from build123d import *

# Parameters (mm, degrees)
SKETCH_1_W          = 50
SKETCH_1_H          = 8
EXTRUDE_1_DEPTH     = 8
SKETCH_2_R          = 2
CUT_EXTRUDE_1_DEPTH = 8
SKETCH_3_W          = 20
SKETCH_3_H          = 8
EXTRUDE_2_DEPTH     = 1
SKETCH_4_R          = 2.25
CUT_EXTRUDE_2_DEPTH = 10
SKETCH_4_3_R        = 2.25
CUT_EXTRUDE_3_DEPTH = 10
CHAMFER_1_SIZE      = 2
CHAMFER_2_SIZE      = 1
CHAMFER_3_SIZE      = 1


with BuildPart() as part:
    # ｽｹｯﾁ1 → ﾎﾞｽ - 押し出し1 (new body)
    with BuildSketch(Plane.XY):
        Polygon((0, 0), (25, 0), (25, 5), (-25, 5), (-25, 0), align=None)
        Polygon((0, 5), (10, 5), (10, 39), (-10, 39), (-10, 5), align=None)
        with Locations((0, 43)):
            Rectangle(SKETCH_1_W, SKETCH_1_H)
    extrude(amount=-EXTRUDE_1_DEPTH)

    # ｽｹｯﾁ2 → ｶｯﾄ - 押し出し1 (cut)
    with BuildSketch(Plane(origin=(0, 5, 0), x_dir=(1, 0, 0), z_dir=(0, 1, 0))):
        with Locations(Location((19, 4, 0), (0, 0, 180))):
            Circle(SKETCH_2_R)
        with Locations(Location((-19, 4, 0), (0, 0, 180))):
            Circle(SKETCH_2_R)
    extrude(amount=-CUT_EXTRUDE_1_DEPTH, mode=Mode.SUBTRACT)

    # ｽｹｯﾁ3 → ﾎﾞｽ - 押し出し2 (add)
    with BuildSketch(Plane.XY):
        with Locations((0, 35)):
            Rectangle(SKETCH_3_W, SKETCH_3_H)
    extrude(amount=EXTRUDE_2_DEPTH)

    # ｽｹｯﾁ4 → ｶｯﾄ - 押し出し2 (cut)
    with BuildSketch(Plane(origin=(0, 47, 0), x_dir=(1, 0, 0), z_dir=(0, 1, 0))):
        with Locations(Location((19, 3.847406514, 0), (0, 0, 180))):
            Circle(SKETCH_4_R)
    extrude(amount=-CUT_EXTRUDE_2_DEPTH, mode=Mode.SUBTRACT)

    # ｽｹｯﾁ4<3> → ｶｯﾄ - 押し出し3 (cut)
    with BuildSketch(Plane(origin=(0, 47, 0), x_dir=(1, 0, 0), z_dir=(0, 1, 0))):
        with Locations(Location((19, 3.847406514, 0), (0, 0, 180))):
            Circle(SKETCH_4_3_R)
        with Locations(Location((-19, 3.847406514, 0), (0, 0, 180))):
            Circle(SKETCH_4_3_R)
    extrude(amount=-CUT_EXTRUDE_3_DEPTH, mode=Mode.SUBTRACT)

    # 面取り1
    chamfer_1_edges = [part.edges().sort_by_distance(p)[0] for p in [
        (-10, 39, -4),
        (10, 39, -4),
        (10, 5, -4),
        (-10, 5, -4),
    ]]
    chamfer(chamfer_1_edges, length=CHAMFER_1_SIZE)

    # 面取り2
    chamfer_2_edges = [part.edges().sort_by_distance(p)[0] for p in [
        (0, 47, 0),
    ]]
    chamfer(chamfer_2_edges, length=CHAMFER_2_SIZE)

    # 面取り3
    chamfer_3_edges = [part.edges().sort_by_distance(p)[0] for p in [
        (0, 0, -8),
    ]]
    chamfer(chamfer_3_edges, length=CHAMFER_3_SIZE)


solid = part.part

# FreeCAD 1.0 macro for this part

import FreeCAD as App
import Part
import Sketcher
from FreeCAD import Vector


def edges_at(feature, points):
    """Names of the edges that pass closest to the given points."""
    edges = feature.Shape.Edges
    near = lambda p: min(range(len(edges)), key=lambda i: edges[i].distToShape(Part.Vertex(*p))[0])
    return sorted({f"Edge{near(p) + 1}" for p in points})


def add_polygon(sketch, points):
    """Adds a closed chain of lines whose ends are joined by coincident constraints."""
    first, n = sketch.GeometryCount, len(points)
    for a, b in zip(points, points[1:] + points[:1]):
        sketch.addGeometry(Part.LineSegment(App.Vector(*a, 0), App.Vector(*b, 0)), False)
    for i in range(n):
        sketch.addConstraint(Sketcher.Constraint("Coincident", first + i, 2, first + (i + 1) % n, 1))

doc = App.newDocument("Part")
body = doc.addObject("PartDesign::Body", "Body")

# Sketch on XY plane
sketch1 = body.newObject("Sketcher::SketchObject", "Sketch")
sketch1.AttachmentSupport = (doc.getObject("XY_Plane"), [""])
sketch1.MapMode = "FlatFace"
add_polygon(sketch1, [(25, 0), (25, 5), (10, 5), (10, 39), (25, 39), (25, 47), (-25, 47), (-25, 39), (-10, 39), (-10, 5), (-25, 5), (-25, 0)])  # lines 0-11
sketch1.addConstraint([
    Sketcher.Constraint("Vertical", 0),
    Sketcher.Constraint("Horizontal", 1),
    Sketcher.Constraint("Vertical", 2),
    Sketcher.Constraint("Horizontal", 3),
    Sketcher.Constraint("Vertical", 4),
    Sketcher.Constraint("Horizontal", 5),
    Sketcher.Constraint("Vertical", 6),
    Sketcher.Constraint("Horizontal", 7),
    Sketcher.Constraint("Vertical", 8),
    Sketcher.Constraint("Horizontal", 9),
    Sketcher.Constraint("Vertical", 10),
    Sketcher.Constraint("Horizontal", 11),
    Sketcher.Constraint("Symmetric", 10, 2, 11, 2, -1, 1),
    Sketcher.Constraint("Symmetric", 3, 2, 6, 2, -2),
    Sketcher.Constraint("Symmetric", 1, 2, 8, 2, -2),
    Sketcher.Constraint("Vertical", 0, 2, 3, 2),
    Sketcher.Constraint("DistanceX", 1, 2, 1, 1, 15.0),
    Sketcher.Constraint("DistanceX", 5, 2, 5, 1, 50.0),
    Sketcher.Constraint("DistanceY", 0, 1, 0, 2, 5.0),
    Sketcher.Constraint("DistanceY", 2, 1, 2, 2, 34.0),
    Sketcher.Constraint("DistanceY", 4, 1, 4, 2, 8.0),
])
pad1 = body.newObject("PartDesign::Pad", "Pad")
pad1.Profile = sketch1
pad1.Length = 8
pad1.Reversed = True

# Sketch on XZ plane
sketch2 = body.newObject("Sketcher::SketchObject", "Sketch001")
sketch2.AttachmentSupport = (doc.getObject("XZ_Plane"), [""])
sketch2.MapMode = "FlatFace"
sketch2.AttachmentOffset = App.Placement(Vector(0, 0, -5), App.Rotation())
sketch2.addGeometry([
    Part.Circle(Vector(19, -4, 0), Vector(0, 0, 1), 2),
    Part.Circle(Vector(-19, -4, 0), Vector(0, 0, 1), 2),
], False)
sketch2.addConstraint([
    Sketcher.Constraint("Equal", 0, 1),
    Sketcher.Constraint("Symmetric", 0, 3, 1, 3, -2),
    Sketcher.Constraint("Diameter", 0, 4.0),
    Sketcher.Constraint("DistanceX", -1, 1, 0, 3, 19.0),
    Sketcher.Constraint("DistanceY", 0, 3, -1, 1, 4.0),
])
pocket1 = body.newObject("PartDesign::Pocket", "Pocket")
pocket1.Profile = sketch2
pocket1.Length = 8
pocket1.Reversed = True

# Sketch on XY plane
sketch3 = body.newObject("Sketcher::SketchObject", "Sketch002")
sketch3.AttachmentSupport = (doc.getObject("XY_Plane"), [""])
sketch3.MapMode = "FlatFace"
add_polygon(sketch3, [(-10, 39), (-10, 31), (10, 31), (10, 39)])  # lines 0-3
sketch3.addConstraint([
    Sketcher.Constraint("Vertical", 0),
    Sketcher.Constraint("Horizontal", 1),
    Sketcher.Constraint("Vertical", 2),
    Sketcher.Constraint("Horizontal", 3),
    Sketcher.Constraint("DistanceX", 1, 1, 1, 2, 20.0),
    Sketcher.Constraint("DistanceY", 0, 2, 0, 1, 8.0),
    Sketcher.Constraint("DistanceX", 0, 2, -1, 1, 10.0),
    Sketcher.Constraint("DistanceY", -1, 1, 0, 2, 31.0),
])
pad2 = body.newObject("PartDesign::Pad", "Pad001")
pad2.Profile = sketch3
pad2.Length = 1

# Sketch on XZ plane
sketch4 = body.newObject("Sketcher::SketchObject", "Sketch003")
sketch4.AttachmentSupport = (doc.getObject("XZ_Plane"), [""])
sketch4.MapMode = "FlatFace"
sketch4.AttachmentOffset = App.Placement(Vector(0, 0, -47), App.Rotation())
sketch4.addGeometry(Part.Circle(Vector(19, -3.8, 0), Vector(0, 0, 1), 2.2), False)
sketch4.addConstraint([
    Sketcher.Constraint("Diameter", 0, 4.5),
    Sketcher.Constraint("DistanceX", -1, 1, 0, 3, 19.0),
    Sketcher.Constraint("DistanceY", 0, 3, -1, 1, 3.847407),
])
pocket2 = body.newObject("PartDesign::Pocket", "Pocket001")
pocket2.Profile = sketch4
pocket2.Length = 10
pocket2.Reversed = True

# Sketch on XZ plane
sketch5 = body.newObject("Sketcher::SketchObject", "Sketch004")
sketch5.AttachmentSupport = (doc.getObject("XZ_Plane"), [""])
sketch5.MapMode = "FlatFace"
sketch5.AttachmentOffset = App.Placement(Vector(0, 0, -47), App.Rotation())
sketch5.addGeometry([
    Part.Circle(Vector(19, -3.8, 0), Vector(0, 0, 1), 2.2),
    Part.Circle(Vector(-19, -3.8, 0), Vector(0, 0, 1), 2.2),
], False)
sketch5.addConstraint([
    Sketcher.Constraint("Equal", 0, 1),
    Sketcher.Constraint("Symmetric", 0, 3, 1, 3, -2),
    Sketcher.Constraint("Diameter", 0, 4.5),
    Sketcher.Constraint("DistanceX", -1, 1, 0, 3, 19.0),
    Sketcher.Constraint("DistanceY", 0, 3, -1, 1, 3.847407),
])
pocket3 = body.newObject("PartDesign::Pocket", "Pocket002")
pocket3.Profile = sketch5
pocket3.Length = 10
pocket3.Reversed = True
doc.recompute()

chamfer = body.newObject("PartDesign::Chamfer", "Chamfer")
chamfer.Base = (pocket3, edges_at(pocket3, [
    (-10, 39, -4),
    (10, 39, -4),
    (10, 5, -4),
    (-10, 5, -4),
]))
chamfer.Size = 2
doc.recompute()

chamfer2 = body.newObject("PartDesign::Chamfer", "Chamfer001")
chamfer2.Base = (chamfer, edges_at(chamfer, [(0, 47, 0)]))
chamfer2.Size = 1
doc.recompute()

chamfer3 = body.newObject("PartDesign::Chamfer", "Chamfer002")
chamfer3.Base = (chamfer2, edges_at(chamfer2, [(0, 0, -8)]))
chamfer3.Size = 1

doc.recompute()
